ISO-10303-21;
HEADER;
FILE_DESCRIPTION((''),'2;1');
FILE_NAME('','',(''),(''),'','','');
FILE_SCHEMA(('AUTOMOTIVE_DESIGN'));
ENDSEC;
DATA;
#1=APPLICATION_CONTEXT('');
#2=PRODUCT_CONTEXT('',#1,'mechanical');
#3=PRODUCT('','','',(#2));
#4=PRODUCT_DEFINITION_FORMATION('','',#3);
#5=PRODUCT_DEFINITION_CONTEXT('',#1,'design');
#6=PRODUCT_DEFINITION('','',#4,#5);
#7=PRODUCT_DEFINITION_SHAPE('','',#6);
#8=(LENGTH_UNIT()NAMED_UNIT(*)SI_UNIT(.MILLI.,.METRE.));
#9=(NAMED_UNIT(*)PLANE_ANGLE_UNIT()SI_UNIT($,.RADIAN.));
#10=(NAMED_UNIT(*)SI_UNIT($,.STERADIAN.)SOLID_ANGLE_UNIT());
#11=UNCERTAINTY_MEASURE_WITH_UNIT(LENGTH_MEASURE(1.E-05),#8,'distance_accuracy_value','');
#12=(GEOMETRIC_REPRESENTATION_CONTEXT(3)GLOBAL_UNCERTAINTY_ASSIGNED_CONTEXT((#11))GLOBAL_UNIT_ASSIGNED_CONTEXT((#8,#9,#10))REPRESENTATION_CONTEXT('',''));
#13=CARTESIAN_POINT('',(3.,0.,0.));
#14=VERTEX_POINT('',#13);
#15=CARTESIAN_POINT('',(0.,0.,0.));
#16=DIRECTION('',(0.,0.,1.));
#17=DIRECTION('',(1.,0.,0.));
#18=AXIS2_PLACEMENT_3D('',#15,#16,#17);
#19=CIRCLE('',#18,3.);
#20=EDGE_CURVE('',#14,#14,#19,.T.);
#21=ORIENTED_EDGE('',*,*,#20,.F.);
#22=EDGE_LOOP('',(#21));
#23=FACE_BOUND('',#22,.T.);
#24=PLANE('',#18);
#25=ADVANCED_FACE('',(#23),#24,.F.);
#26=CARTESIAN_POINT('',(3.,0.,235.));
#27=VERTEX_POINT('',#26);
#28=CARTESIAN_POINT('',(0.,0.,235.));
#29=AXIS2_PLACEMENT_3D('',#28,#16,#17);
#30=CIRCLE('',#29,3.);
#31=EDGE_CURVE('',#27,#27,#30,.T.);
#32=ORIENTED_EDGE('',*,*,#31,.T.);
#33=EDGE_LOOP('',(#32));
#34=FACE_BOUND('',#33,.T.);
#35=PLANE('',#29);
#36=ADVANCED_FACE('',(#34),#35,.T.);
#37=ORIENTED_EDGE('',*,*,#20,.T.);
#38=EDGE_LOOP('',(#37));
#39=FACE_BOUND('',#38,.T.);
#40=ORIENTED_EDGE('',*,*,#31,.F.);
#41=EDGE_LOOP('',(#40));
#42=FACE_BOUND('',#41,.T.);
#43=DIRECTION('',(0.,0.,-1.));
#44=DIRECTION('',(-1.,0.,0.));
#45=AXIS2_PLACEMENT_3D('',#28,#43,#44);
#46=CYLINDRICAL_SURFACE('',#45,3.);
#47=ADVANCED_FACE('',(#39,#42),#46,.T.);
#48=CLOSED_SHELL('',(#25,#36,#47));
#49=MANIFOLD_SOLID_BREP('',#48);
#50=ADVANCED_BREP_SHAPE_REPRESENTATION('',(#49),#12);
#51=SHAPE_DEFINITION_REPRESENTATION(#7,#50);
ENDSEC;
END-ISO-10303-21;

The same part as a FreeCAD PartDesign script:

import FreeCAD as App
import Part
import Sketcher
from FreeCAD import Vector

doc = App.newDocument("Part")
params = doc.addObject("Spreadsheet::Sheet", "Params")
for row, (alias, value) in enumerate([
    ("sketch1_diameter", "6 mm"),
    ("pad1_length", "235 mm"),
], start=1):
    params.set(f"A{row}", alias)
    params.set(f"B{row}", "=" + value)
    params.setAlias(f"B{row}", alias)

body = doc.addObject("PartDesign::Body", "Body")

# Sketch on XY plane
sketch1 = body.newObject("Sketcher::SketchObject", "Sketch")
sketch1.AttachmentSupport = (doc.getObject("XY_Plane"), [""])
sketch1.MapMode = "FlatFace"
sketch1.addGeometry(Part.Circle(Vector(0, 0, 0), Vector(0, 0, 1), 3), False)
sketch1.addConstraint(Sketcher.Constraint("Coincident", 0, 3, -1, 1))
sketch1.addConstraint(Sketcher.Constraint("Diameter", 0, 6.0))
sketch1.setExpression("Constraints[1]", "Params.sketch1_diameter")
pad1 = body.newObject("PartDesign::Pad", "Pad")
pad1.Profile = sketch1
pad1.setExpression("Length", "Params.pad1_length")

doc.recompute()
